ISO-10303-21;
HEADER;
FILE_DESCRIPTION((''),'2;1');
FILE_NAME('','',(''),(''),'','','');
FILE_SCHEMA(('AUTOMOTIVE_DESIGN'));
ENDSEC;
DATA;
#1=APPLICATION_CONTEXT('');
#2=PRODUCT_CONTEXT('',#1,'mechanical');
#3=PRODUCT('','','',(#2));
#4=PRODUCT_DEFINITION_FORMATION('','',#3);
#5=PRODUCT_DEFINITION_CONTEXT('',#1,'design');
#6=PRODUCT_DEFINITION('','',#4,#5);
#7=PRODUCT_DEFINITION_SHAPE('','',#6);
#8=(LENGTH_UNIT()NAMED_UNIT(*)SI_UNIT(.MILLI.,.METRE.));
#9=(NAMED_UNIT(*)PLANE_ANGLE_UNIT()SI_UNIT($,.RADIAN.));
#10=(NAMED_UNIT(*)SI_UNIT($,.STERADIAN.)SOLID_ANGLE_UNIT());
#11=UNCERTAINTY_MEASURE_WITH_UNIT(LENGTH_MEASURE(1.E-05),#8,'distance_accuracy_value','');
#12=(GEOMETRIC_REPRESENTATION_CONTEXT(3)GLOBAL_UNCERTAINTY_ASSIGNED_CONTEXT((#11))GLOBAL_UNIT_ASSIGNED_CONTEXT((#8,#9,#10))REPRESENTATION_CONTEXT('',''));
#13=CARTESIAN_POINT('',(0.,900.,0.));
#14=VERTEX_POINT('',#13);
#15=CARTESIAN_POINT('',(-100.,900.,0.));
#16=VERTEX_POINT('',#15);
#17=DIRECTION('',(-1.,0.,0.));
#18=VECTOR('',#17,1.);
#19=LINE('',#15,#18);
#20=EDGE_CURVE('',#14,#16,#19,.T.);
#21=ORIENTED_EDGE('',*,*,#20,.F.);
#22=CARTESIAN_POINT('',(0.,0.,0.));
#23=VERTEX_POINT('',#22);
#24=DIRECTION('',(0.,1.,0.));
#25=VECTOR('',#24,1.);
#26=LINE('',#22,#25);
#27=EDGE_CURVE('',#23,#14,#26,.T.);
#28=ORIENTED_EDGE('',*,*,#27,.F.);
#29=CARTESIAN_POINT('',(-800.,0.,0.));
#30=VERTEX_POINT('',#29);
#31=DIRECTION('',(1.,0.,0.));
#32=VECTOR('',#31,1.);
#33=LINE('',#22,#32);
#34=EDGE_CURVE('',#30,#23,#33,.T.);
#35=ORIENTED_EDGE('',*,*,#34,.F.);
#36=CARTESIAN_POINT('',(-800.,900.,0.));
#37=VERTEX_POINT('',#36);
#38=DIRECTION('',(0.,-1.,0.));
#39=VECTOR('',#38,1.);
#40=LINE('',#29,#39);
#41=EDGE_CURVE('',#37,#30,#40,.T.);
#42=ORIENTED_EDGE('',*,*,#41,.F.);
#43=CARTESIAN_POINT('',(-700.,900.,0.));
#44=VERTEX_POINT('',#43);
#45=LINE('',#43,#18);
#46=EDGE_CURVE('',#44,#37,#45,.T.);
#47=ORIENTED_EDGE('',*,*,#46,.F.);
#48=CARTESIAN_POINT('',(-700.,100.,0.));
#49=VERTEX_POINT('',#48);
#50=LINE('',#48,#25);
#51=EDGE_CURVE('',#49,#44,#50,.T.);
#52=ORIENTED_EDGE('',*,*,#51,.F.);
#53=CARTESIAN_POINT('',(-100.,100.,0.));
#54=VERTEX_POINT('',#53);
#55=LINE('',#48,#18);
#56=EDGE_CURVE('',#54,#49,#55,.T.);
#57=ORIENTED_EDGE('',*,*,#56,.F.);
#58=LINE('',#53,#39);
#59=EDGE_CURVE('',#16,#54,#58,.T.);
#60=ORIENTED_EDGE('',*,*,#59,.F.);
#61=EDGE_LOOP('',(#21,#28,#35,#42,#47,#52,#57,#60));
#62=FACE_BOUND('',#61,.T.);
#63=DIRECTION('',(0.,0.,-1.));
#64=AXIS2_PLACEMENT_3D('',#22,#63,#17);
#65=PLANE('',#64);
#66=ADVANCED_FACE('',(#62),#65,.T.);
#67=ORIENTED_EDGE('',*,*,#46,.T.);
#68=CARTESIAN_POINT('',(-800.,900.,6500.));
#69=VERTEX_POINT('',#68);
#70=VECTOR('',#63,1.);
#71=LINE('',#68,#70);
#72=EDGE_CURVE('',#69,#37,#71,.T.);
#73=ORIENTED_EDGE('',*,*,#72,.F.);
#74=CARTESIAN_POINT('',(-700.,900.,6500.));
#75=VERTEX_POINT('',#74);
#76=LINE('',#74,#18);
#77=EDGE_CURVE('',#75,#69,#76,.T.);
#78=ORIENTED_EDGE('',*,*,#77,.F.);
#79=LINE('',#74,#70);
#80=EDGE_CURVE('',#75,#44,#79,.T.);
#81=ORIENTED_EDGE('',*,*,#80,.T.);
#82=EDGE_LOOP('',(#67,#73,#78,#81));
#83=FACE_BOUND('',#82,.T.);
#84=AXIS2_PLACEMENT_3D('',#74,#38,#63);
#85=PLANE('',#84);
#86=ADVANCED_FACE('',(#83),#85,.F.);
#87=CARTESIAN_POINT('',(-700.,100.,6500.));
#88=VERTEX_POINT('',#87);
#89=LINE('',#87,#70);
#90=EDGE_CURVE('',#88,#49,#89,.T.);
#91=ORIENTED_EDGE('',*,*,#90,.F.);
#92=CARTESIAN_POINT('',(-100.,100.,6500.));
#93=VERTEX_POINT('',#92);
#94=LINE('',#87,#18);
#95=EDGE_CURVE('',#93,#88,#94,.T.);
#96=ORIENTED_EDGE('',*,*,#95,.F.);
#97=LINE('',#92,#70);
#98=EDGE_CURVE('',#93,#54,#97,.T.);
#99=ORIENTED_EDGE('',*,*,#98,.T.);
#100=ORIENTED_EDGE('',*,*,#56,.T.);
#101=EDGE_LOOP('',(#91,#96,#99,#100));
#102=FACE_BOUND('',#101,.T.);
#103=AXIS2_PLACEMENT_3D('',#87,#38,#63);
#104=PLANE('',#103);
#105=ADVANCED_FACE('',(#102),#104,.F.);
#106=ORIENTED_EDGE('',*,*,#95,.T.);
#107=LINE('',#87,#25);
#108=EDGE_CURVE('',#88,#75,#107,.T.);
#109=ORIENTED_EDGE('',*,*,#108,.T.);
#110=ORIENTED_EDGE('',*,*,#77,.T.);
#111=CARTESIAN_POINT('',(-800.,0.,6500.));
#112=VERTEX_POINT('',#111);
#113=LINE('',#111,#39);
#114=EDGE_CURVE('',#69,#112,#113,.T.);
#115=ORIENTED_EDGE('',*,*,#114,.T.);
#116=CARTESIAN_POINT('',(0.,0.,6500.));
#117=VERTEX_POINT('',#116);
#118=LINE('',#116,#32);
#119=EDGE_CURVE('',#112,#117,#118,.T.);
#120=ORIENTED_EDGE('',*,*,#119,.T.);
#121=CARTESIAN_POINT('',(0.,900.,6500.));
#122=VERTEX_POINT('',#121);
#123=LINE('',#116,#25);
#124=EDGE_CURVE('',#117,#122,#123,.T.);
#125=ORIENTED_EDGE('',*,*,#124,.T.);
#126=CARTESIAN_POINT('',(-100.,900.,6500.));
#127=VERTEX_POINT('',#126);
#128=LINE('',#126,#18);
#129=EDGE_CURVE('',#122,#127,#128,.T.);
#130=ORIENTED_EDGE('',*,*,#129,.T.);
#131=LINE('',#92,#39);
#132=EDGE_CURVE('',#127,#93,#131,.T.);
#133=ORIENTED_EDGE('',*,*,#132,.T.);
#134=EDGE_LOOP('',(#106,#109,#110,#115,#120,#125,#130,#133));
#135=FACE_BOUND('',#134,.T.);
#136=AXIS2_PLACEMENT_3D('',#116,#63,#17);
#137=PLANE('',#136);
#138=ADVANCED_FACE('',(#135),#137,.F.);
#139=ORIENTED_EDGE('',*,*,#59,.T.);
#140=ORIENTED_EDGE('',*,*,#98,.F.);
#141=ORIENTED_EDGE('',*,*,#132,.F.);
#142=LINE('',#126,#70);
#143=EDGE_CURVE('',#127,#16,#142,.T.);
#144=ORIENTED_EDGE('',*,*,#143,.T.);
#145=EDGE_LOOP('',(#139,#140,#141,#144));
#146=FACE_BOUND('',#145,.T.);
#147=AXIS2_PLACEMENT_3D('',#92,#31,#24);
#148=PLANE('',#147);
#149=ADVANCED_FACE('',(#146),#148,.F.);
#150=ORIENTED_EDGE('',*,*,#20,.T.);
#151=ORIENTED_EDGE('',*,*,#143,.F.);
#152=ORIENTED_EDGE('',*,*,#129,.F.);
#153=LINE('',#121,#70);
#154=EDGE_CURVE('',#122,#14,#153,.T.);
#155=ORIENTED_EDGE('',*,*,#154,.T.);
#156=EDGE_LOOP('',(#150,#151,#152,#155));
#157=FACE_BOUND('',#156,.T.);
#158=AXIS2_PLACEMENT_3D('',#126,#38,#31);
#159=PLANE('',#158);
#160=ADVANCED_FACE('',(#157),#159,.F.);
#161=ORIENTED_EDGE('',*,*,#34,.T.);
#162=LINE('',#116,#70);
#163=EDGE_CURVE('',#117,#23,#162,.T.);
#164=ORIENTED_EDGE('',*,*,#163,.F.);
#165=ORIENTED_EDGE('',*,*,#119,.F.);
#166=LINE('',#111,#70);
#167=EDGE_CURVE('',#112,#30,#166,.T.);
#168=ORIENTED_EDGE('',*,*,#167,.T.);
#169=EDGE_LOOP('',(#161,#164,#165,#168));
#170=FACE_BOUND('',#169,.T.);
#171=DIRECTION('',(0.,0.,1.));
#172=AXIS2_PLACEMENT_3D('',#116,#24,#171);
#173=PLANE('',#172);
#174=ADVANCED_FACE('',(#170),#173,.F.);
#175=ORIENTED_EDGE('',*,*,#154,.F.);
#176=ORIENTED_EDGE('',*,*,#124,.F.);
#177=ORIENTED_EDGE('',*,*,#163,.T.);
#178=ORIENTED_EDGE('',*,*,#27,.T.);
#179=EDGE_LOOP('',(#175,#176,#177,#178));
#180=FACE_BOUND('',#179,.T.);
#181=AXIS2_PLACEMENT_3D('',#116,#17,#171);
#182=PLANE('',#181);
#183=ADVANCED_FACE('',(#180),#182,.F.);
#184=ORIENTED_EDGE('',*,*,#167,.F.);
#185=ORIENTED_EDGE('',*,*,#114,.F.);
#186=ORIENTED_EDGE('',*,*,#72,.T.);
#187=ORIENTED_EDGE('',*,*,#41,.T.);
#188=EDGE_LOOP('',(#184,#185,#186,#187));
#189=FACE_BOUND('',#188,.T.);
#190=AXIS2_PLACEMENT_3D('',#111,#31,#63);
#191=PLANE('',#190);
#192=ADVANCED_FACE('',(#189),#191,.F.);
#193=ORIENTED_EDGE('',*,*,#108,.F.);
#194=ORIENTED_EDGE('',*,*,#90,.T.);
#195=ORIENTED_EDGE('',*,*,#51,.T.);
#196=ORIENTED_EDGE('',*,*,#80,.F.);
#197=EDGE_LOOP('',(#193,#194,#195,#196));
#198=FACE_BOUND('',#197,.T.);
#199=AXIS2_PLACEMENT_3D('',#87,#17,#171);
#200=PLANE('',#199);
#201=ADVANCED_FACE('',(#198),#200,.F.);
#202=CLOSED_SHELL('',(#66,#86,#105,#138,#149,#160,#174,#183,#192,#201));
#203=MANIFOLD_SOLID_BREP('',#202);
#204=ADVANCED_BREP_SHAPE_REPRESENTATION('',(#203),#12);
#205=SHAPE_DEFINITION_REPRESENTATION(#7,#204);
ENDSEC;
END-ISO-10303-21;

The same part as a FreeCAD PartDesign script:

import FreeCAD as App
import Part
import Sketcher


def add_polygon(sketch, points):
    """Adds a closed chain of lines whose ends are joined by coincident constraints."""
    first, n = sketch.GeometryCount, len(points)
    for a, b in zip(points, points[1:] + points[:1]):
        sketch.addGeometry(Part.LineSegment(App.Vector(*a, 0), App.Vector(*b, 0)), False)
    for i in range(n):
        sketch.addConstraint(Sketcher.Constraint("Coincident", first + i, 2, first + (i + 1) % n, 1))

doc = App.newDocument("Part")
body = doc.addObject("PartDesign::Body", "Body")

# Sketch on XY plane
sketch1 = body.newObject("Sketcher::SketchObject", "Sketch")
sketch1.AttachmentSupport = (doc.getObject("XY_Plane"), [""])
sketch1.MapMode = "FlatFace"
add_polygon(sketch1, [(-800, 0), (0, 0), (0, 900), (-100, 900), (-100, 100), (-700, 100), (-700, 900), (-800, 900)])  # lines 0-7
sketch1.addConstraint([
    Sketcher.Constraint("Horizontal", 0),
    Sketcher.Constraint("Vertical", 1),
    Sketcher.Constraint("Horizontal", 2),
    Sketcher.Constraint("Vertical", 3),
    Sketcher.Constraint("Horizontal", 4),
    Sketcher.Constraint("Vertical", 5),
    Sketcher.Constraint("Horizontal", 6),
    Sketcher.Constraint("Vertical", 7),
    Sketcher.Constraint("Coincident", 0, 2, -1, 1),
    Sketcher.Constraint("Horizontal", 2, 2, 5, 2),
    Sketcher.Constraint("Equal", 2, 6),
    Sketcher.Constraint("Equal", 0, 3),
    Sketcher.Constraint("DistanceX", 0, 1, 0, 2, 800.0),
    Sketcher.Constraint("DistanceX", 2, 2, 2, 1, 100.0),
    Sketcher.Constraint("DistanceY", 1, 1, 1, 2, 900.0),
])
pad1 = body.newObject("PartDesign::Pad", "Pad")
pad1.Profile = sketch1
pad1.Length = 6500

doc.recompute()
